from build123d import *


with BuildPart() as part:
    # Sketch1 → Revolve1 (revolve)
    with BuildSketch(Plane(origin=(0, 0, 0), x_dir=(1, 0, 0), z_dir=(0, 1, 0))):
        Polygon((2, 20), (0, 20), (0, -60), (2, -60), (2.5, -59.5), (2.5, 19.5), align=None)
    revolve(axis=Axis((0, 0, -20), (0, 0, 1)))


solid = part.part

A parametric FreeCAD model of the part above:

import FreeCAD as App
import Part
import Sketcher

doc = App.newDocument("Part")
body = doc.addObject("PartDesign::Body", "Body")

sketch1 = body.newObject("Sketcher::SketchObject", "Sketch")
sketch1.AttachmentSupport = (doc.getObject("XZ_Plane"), [""])
sketch1.MapMode = "FlatFace"
sketch1.addGeometry([
    Part.LineSegment(App.Vector(2, -20, 0), App.Vector(0, -20, 0)),
    Part.LineSegment(App.Vector(0, -20, 0), App.Vector(0, 60, 0)),
    Part.LineSegment(App.Vector(0, 60, 0), App.Vector(2, 60, 0)),
    Part.LineSegment(App.Vector(2, 60, 0), App.Vector(2.5, 59.5, 0)),
    Part.LineSegment(App.Vector(2.5, 59.5, 0), App.Vector(2.5, -19.5, 0)),
    Part.LineSegment(App.Vector(2.5, -19.5, 0), App.Vector(2, -20, 0)),
], False)
sketch1.addConstraint([
    Sketcher.Constraint("Coincident", 0, 2, 1, 1),
    Sketcher.Constraint("Coincident", 1, 2, 2, 1),
    Sketcher.Constraint("Coincident", 2, 2, 3, 1),
    Sketcher.Constraint("Coincident", 3, 2, 4, 1),
    Sketcher.Constraint("Coincident", 4, 2, 5, 1),
    Sketcher.Constraint("Coincident", 5, 2, 0, 1),
    Sketcher.Constraint("Horizontal", 0),
    Sketcher.Constraint("Vertical", 1),
    Sketcher.Constraint("Horizontal", 2),
    Sketcher.Constraint("Vertical", 4),
    Sketcher.Constraint("PointOnObject", 0, 2, -2),
    Sketcher.Constraint("Perpendicular", 3, 5),
    Sketcher.Constraint("Vertical", 2, 2, 5, 2),
    Sketcher.Constraint("Equal", 3, 5),
    Sketcher.Constraint("DistanceX", 0, 2, 0, 1, 2.0),
    Sketcher.Constraint("DistanceY", 1, 1, 1, 2, 80.0),
    Sketcher.Constraint("DistanceY", 4, 2, 4, 1, 79.0),
    Sketcher.Constraint("DistanceY", 0, 2, -1, 1, 20.0),
])
revolution = body.newObject("PartDesign::Revolution", "Revolution")
revolution.Profile = sketch1
revolution.ReferenceAxis = (sketch1, ["V_Axis"])
revolution.Angle = 360

doc.recompute()
